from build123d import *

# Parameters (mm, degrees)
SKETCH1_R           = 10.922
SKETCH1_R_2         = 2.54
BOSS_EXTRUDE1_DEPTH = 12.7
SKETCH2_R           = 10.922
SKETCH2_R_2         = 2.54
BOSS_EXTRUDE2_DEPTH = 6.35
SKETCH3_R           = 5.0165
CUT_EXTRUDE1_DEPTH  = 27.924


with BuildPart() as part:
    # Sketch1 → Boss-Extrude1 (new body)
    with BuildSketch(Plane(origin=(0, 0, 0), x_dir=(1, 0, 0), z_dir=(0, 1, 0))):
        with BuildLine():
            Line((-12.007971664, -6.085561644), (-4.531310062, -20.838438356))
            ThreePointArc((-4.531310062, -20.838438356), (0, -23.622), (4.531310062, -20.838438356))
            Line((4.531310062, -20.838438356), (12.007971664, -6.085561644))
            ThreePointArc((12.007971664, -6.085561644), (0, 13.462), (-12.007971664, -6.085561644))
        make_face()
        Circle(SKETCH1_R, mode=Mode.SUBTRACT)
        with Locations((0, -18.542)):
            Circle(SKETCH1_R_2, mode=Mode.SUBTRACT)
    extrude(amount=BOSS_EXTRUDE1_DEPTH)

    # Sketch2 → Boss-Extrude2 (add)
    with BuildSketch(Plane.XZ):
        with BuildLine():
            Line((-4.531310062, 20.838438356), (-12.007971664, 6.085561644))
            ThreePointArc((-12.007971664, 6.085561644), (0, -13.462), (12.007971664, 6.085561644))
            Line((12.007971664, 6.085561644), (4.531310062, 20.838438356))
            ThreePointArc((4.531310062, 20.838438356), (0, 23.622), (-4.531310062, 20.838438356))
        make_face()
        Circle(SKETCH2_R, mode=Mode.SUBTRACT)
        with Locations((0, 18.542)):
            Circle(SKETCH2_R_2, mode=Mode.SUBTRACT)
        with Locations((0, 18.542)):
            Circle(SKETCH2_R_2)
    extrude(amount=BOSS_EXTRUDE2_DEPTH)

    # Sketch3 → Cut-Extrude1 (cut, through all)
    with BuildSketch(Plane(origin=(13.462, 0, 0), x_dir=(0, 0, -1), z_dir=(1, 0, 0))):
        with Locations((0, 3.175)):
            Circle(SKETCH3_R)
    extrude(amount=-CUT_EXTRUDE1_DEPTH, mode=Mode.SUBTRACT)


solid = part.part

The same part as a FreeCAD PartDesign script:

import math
import FreeCAD as App
import Part
import Sketcher
from FreeCAD import Vector
Q = App.Units.Quantity

doc = App.newDocument("Part")
body = doc.addObject("PartDesign::Body", "Body")

sketch1 = body.newObject("Sketcher::SketchObject", "Sketch")
sketch1.AttachmentSupport = (doc.getObject("XZ_Plane"), [""])
sketch1.MapMode = "FlatFace"
sketch1.addGeometry([
    Part.LineSegment(Vector(-12.007972, 6.085562, 0), Vector(-4.53131, 20.838438, 0)),
    Part.ArcOfCircle(Part.Circle(Vector(0, 18.542, 0), Vector(0, 0, 1), 5.08), math.radians(26.875594), math.radians(153.124406)),
    Part.LineSegment(Vector(4.53131, 20.838438, 0), Vector(12.007972, 6.085562, 0)),
    Part.ArcOfCircle(Part.Circle(Vector(0, 0, 0), Vector(0, 0, 1), 13.462), math.radians(153.124406), math.radians(386.875594)),
    Part.Circle(Vector(0, 18.542, 0), Vector(0, 0, 1), 2.54),
    Part.Circle(Vector(0, 0, 0), Vector(0, 0, 1), 10.922),
], False)
sketch1.addConstraint([
    Sketcher.Constraint("Tangent", 0, 2, 1, 2),
    Sketcher.Constraint("Tangent", 1, 1, 2, 1),
    Sketcher.Constraint("Tangent", 2, 2, 3, 2),
    Sketcher.Constraint("Tangent", 3, 1, 0, 1),
    Sketcher.Constraint("Coincident", 3, 3, -1, 1),
    Sketcher.Constraint("Coincident", 5, 3, -1, 1),
    Sketcher.Constraint("Coincident", 4, 3, 1, 3),
    Sketcher.Constraint("PointOnObject", 1, 3, -2),
    Sketcher.Constraint("Diameter", 4, Q("0.2 in")),
    Sketcher.Constraint("Radius", 1, Q("0.2 in")),
    Sketcher.Constraint("Diameter", 5, Q("0.86 in")),
    Sketcher.Constraint("Radius", 3, Q("0.53 in")),
    Sketcher.Constraint("DistanceY", -1, 1, 1, 3, Q("0.73 in")),
])
pad1 = body.newObject("PartDesign::Pad", "Pad")
pad1.Profile = sketch1
pad1.Length = Q("0.5 in")
pad1.Reversed = True

sketch2 = body.newObject("Sketcher::SketchObject", "Sketch001")
sketch2.AttachmentSupport = (doc.getObject("XZ_Plane"), [""])
sketch2.MapMode = "FlatFace"
sketch2.addGeometry([
    Part.LineSegment(Vector(-4.53131, 20.838438, 0), Vector(-12.007972, 6.085562, 0)),
    Part.ArcOfCircle(Part.Circle(Vector(0, 0, 0), Vector(0, 0, 1), 13.462), math.radians(153.124406), math.radians(386.875594)),
    Part.LineSegment(Vector(12.007972, 6.085562, 0), Vector(4.53131, 20.838438, 0)),
    Part.ArcOfCircle(Part.Circle(Vector(0, 18.542, 0), Vector(0, 0, 1), 5.08), math.radians(26.875594), math.radians(153.124406)),
    Part.Circle(Vector(0, 0, 0), Vector(0, 0, 1), 10.922),
], False)
sketch2.addConstraint([
    Sketcher.Constraint("Tangent", 0, 2, 1, 1),
    Sketcher.Constraint("Tangent", 1, 2, 2, 1),
    Sketcher.Constraint("Tangent", 2, 2, 3, 1),
    Sketcher.Constraint("Tangent", 3, 2, 0, 1),
    Sketcher.Constraint("Coincident", 1, 3, -1, 1),
    Sketcher.Constraint("Coincident", 4, 3, -1, 1),
    Sketcher.Constraint("PointOnObject", 3, 3, -2),
    Sketcher.Constraint("Radius", 3, Q("0.2 in")),
    Sketcher.Constraint("Diameter", 4, Q("0.86 in")),
    Sketcher.Constraint("Radius", 1, Q("0.53 in")),
    Sketcher.Constraint("DistanceY", -1, 1, 3, 3, Q("0.73 in")),
])
pad2 = body.newObject("PartDesign::Pad", "Pad001")
pad2.Profile = sketch2
pad2.Length = Q("0.25 in")

sketch3 = body.newObject("Sketcher::SketchObject", "Sketch002")
sketch3.AttachmentSupport = (doc.getObject("YZ_Plane"), [""])
sketch3.MapMode = "FlatFace"
sketch3.AttachmentOffset = App.Placement(Vector(0, 0, 0.53 * 25.4), App.Rotation())
sketch3.addGeometry(Part.Circle(Vector(3.175, 0, 0), Vector(0, 0, 1), 5.0165), False)
sketch3.addConstraint([
    Sketcher.Constraint("PointOnObject", 0, 3, -1),
    Sketcher.Constraint("Diameter", 0, Q("0.395 in")),
    Sketcher.Constraint("DistanceX", -1, 1, 0, 3, Q("0.125 in")),
])
pocket1 = body.newObject("PartDesign::Pocket", "Pocket")
pocket1.Profile = sketch3
pocket1.Type = "ThroughAll"

doc.recompute()
